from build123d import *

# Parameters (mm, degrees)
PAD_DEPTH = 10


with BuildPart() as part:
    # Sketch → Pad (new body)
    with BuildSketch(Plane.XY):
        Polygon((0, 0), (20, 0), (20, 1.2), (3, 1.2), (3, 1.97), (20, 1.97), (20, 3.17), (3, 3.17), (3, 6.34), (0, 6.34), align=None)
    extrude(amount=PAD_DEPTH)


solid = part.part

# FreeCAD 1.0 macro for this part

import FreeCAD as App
import Part
import Sketcher
from FreeCAD import Vector

doc = App.newDocument("Part")
params = doc.addObject("Spreadsheet::Sheet", "Params")
for row, (alias, value) in enumerate([
    ("sketch1_width", "20 mm"),
    ("sketch1_width2", "17 mm"),
    ("sketch1_height", "1.2 mm"),
    ("sketch1_height2", "0.77 mm"),
    ("sketch1_height3", "3.17 mm"),
    ("pad1_length", "10 mm"),
], start=1):
    params.set(f"A{row}", alias)
    params.set(f"B{row}", "=" + value)
    params.setAlias(f"B{row}", alias)

body = doc.addObject("PartDesign::Body", "Body")

# Sketch on XY plane
sketch1 = doc.addObject("Sketcher::SketchObject", "Sketch")
body.addObject(sketch1)
sketch1.AttachmentSupport = (doc.XY_Plane, [""])
sketch1.MapMode = "FlatFace"
sketch1.addGeometry([
    Part.LineSegment(Vector(0, 0, 0), Vector(20, 0, 0)),  # 0
    Part.LineSegment(Vector(20, 0, 0), Vector(20, 1.2, 0)),  # 1
    Part.LineSegment(Vector(20, 1.2, 0), Vector(3, 1.2, 0)),  # 2
    Part.LineSegment(Vector(3, 1.2, 0), Vector(3, 2, 0)),  # 3
    Part.LineSegment(Vector(3, 2, 0), Vector(20, 2, 0)),  # 4
    Part.LineSegment(Vector(20, 2, 0), Vector(20, 3.2, 0)),  # 5
    Part.LineSegment(Vector(20, 3.2, 0), Vector(3, 3.2, 0)),  # 6
    Part.LineSegment(Vector(3, 3.2, 0), Vector(3, 6.3, 0)),  # 7
    Part.LineSegment(Vector(3, 6.3, 0), Vector(0, 6.3, 0)),  # 8
    Part.LineSegment(Vector(0, 6.3, 0), Vector(0, 0, 0)),  # 9
], False)
sketch1.addConstraint([
    Sketcher.Constraint("Coincident", 0, 2, 1, 1),
    Sketcher.Constraint("Coincident", 1, 2, 2, 1),
    Sketcher.Constraint("Coincident", 2, 2, 3, 1),
    Sketcher.Constraint("Coincident", 3, 2, 4, 1),
    Sketcher.Constraint("Coincident", 4, 2, 5, 1),
    Sketcher.Constraint("Coincident", 5, 2, 6, 1),
    Sketcher.Constraint("Coincident", 6, 2, 7, 1),
    Sketcher.Constraint("Coincident", 7, 2, 8, 1),
    Sketcher.Constraint("Coincident", 8, 2, 9, 1),
    Sketcher.Constraint("Coincident", 9, 2, 0, 1),
    Sketcher.Constraint("Horizontal", 0),
    Sketcher.Constraint("Vertical", 1),
    Sketcher.Constraint("Horizontal", 2),
    Sketcher.Constraint("Vertical", 3),
    Sketcher.Constraint("Horizontal", 4),
    Sketcher.Constraint("Vertical", 5),
    Sketcher.Constraint("Horizontal", 6),
    Sketcher.Constraint("Vertical", 7),
    Sketcher.Constraint("Horizontal", 8),
    Sketcher.Constraint("Vertical", 9),
    Sketcher.Constraint("Coincident", 9, 2, -1, 1),
    Sketcher.Constraint("Vertical", 1, 2, 4, 2),
    Sketcher.Constraint("Vertical", 3, 2, 6, 2),
    Sketcher.Constraint("Equal", 1, 5),
    Sketcher.Constraint("DistanceX", 0, 1, 0, 2, 20.0),
    Sketcher.Constraint("DistanceX", 2, 2, 2, 1, 17.0),
    Sketcher.Constraint("DistanceY", 1, 1, 1, 2, 1.2),
    Sketcher.Constraint("DistanceY", 3, 1, 3, 2, 0.77),
    Sketcher.Constraint("DistanceY", 7, 1, 7, 2, 3.17),
])
sketch1.setExpression("Constraints[24]", "Params.sketch1_width")
sketch1.setExpression("Constraints[25]", "Params.sketch1_width2")
sketch1.setExpression("Constraints[26]", "Params.sketch1_height")
sketch1.setExpression("Constraints[27]", "Params.sketch1_height2")
sketch1.setExpression("Constraints[28]", "Params.sketch1_height3")
pad1 = doc.addObject("PartDesign::Pad", "Pad")
body.addObject(pad1)
pad1.Profile = sketch1
pad1.setExpression("Length", "Params.pad1_length")

doc.recompute()
